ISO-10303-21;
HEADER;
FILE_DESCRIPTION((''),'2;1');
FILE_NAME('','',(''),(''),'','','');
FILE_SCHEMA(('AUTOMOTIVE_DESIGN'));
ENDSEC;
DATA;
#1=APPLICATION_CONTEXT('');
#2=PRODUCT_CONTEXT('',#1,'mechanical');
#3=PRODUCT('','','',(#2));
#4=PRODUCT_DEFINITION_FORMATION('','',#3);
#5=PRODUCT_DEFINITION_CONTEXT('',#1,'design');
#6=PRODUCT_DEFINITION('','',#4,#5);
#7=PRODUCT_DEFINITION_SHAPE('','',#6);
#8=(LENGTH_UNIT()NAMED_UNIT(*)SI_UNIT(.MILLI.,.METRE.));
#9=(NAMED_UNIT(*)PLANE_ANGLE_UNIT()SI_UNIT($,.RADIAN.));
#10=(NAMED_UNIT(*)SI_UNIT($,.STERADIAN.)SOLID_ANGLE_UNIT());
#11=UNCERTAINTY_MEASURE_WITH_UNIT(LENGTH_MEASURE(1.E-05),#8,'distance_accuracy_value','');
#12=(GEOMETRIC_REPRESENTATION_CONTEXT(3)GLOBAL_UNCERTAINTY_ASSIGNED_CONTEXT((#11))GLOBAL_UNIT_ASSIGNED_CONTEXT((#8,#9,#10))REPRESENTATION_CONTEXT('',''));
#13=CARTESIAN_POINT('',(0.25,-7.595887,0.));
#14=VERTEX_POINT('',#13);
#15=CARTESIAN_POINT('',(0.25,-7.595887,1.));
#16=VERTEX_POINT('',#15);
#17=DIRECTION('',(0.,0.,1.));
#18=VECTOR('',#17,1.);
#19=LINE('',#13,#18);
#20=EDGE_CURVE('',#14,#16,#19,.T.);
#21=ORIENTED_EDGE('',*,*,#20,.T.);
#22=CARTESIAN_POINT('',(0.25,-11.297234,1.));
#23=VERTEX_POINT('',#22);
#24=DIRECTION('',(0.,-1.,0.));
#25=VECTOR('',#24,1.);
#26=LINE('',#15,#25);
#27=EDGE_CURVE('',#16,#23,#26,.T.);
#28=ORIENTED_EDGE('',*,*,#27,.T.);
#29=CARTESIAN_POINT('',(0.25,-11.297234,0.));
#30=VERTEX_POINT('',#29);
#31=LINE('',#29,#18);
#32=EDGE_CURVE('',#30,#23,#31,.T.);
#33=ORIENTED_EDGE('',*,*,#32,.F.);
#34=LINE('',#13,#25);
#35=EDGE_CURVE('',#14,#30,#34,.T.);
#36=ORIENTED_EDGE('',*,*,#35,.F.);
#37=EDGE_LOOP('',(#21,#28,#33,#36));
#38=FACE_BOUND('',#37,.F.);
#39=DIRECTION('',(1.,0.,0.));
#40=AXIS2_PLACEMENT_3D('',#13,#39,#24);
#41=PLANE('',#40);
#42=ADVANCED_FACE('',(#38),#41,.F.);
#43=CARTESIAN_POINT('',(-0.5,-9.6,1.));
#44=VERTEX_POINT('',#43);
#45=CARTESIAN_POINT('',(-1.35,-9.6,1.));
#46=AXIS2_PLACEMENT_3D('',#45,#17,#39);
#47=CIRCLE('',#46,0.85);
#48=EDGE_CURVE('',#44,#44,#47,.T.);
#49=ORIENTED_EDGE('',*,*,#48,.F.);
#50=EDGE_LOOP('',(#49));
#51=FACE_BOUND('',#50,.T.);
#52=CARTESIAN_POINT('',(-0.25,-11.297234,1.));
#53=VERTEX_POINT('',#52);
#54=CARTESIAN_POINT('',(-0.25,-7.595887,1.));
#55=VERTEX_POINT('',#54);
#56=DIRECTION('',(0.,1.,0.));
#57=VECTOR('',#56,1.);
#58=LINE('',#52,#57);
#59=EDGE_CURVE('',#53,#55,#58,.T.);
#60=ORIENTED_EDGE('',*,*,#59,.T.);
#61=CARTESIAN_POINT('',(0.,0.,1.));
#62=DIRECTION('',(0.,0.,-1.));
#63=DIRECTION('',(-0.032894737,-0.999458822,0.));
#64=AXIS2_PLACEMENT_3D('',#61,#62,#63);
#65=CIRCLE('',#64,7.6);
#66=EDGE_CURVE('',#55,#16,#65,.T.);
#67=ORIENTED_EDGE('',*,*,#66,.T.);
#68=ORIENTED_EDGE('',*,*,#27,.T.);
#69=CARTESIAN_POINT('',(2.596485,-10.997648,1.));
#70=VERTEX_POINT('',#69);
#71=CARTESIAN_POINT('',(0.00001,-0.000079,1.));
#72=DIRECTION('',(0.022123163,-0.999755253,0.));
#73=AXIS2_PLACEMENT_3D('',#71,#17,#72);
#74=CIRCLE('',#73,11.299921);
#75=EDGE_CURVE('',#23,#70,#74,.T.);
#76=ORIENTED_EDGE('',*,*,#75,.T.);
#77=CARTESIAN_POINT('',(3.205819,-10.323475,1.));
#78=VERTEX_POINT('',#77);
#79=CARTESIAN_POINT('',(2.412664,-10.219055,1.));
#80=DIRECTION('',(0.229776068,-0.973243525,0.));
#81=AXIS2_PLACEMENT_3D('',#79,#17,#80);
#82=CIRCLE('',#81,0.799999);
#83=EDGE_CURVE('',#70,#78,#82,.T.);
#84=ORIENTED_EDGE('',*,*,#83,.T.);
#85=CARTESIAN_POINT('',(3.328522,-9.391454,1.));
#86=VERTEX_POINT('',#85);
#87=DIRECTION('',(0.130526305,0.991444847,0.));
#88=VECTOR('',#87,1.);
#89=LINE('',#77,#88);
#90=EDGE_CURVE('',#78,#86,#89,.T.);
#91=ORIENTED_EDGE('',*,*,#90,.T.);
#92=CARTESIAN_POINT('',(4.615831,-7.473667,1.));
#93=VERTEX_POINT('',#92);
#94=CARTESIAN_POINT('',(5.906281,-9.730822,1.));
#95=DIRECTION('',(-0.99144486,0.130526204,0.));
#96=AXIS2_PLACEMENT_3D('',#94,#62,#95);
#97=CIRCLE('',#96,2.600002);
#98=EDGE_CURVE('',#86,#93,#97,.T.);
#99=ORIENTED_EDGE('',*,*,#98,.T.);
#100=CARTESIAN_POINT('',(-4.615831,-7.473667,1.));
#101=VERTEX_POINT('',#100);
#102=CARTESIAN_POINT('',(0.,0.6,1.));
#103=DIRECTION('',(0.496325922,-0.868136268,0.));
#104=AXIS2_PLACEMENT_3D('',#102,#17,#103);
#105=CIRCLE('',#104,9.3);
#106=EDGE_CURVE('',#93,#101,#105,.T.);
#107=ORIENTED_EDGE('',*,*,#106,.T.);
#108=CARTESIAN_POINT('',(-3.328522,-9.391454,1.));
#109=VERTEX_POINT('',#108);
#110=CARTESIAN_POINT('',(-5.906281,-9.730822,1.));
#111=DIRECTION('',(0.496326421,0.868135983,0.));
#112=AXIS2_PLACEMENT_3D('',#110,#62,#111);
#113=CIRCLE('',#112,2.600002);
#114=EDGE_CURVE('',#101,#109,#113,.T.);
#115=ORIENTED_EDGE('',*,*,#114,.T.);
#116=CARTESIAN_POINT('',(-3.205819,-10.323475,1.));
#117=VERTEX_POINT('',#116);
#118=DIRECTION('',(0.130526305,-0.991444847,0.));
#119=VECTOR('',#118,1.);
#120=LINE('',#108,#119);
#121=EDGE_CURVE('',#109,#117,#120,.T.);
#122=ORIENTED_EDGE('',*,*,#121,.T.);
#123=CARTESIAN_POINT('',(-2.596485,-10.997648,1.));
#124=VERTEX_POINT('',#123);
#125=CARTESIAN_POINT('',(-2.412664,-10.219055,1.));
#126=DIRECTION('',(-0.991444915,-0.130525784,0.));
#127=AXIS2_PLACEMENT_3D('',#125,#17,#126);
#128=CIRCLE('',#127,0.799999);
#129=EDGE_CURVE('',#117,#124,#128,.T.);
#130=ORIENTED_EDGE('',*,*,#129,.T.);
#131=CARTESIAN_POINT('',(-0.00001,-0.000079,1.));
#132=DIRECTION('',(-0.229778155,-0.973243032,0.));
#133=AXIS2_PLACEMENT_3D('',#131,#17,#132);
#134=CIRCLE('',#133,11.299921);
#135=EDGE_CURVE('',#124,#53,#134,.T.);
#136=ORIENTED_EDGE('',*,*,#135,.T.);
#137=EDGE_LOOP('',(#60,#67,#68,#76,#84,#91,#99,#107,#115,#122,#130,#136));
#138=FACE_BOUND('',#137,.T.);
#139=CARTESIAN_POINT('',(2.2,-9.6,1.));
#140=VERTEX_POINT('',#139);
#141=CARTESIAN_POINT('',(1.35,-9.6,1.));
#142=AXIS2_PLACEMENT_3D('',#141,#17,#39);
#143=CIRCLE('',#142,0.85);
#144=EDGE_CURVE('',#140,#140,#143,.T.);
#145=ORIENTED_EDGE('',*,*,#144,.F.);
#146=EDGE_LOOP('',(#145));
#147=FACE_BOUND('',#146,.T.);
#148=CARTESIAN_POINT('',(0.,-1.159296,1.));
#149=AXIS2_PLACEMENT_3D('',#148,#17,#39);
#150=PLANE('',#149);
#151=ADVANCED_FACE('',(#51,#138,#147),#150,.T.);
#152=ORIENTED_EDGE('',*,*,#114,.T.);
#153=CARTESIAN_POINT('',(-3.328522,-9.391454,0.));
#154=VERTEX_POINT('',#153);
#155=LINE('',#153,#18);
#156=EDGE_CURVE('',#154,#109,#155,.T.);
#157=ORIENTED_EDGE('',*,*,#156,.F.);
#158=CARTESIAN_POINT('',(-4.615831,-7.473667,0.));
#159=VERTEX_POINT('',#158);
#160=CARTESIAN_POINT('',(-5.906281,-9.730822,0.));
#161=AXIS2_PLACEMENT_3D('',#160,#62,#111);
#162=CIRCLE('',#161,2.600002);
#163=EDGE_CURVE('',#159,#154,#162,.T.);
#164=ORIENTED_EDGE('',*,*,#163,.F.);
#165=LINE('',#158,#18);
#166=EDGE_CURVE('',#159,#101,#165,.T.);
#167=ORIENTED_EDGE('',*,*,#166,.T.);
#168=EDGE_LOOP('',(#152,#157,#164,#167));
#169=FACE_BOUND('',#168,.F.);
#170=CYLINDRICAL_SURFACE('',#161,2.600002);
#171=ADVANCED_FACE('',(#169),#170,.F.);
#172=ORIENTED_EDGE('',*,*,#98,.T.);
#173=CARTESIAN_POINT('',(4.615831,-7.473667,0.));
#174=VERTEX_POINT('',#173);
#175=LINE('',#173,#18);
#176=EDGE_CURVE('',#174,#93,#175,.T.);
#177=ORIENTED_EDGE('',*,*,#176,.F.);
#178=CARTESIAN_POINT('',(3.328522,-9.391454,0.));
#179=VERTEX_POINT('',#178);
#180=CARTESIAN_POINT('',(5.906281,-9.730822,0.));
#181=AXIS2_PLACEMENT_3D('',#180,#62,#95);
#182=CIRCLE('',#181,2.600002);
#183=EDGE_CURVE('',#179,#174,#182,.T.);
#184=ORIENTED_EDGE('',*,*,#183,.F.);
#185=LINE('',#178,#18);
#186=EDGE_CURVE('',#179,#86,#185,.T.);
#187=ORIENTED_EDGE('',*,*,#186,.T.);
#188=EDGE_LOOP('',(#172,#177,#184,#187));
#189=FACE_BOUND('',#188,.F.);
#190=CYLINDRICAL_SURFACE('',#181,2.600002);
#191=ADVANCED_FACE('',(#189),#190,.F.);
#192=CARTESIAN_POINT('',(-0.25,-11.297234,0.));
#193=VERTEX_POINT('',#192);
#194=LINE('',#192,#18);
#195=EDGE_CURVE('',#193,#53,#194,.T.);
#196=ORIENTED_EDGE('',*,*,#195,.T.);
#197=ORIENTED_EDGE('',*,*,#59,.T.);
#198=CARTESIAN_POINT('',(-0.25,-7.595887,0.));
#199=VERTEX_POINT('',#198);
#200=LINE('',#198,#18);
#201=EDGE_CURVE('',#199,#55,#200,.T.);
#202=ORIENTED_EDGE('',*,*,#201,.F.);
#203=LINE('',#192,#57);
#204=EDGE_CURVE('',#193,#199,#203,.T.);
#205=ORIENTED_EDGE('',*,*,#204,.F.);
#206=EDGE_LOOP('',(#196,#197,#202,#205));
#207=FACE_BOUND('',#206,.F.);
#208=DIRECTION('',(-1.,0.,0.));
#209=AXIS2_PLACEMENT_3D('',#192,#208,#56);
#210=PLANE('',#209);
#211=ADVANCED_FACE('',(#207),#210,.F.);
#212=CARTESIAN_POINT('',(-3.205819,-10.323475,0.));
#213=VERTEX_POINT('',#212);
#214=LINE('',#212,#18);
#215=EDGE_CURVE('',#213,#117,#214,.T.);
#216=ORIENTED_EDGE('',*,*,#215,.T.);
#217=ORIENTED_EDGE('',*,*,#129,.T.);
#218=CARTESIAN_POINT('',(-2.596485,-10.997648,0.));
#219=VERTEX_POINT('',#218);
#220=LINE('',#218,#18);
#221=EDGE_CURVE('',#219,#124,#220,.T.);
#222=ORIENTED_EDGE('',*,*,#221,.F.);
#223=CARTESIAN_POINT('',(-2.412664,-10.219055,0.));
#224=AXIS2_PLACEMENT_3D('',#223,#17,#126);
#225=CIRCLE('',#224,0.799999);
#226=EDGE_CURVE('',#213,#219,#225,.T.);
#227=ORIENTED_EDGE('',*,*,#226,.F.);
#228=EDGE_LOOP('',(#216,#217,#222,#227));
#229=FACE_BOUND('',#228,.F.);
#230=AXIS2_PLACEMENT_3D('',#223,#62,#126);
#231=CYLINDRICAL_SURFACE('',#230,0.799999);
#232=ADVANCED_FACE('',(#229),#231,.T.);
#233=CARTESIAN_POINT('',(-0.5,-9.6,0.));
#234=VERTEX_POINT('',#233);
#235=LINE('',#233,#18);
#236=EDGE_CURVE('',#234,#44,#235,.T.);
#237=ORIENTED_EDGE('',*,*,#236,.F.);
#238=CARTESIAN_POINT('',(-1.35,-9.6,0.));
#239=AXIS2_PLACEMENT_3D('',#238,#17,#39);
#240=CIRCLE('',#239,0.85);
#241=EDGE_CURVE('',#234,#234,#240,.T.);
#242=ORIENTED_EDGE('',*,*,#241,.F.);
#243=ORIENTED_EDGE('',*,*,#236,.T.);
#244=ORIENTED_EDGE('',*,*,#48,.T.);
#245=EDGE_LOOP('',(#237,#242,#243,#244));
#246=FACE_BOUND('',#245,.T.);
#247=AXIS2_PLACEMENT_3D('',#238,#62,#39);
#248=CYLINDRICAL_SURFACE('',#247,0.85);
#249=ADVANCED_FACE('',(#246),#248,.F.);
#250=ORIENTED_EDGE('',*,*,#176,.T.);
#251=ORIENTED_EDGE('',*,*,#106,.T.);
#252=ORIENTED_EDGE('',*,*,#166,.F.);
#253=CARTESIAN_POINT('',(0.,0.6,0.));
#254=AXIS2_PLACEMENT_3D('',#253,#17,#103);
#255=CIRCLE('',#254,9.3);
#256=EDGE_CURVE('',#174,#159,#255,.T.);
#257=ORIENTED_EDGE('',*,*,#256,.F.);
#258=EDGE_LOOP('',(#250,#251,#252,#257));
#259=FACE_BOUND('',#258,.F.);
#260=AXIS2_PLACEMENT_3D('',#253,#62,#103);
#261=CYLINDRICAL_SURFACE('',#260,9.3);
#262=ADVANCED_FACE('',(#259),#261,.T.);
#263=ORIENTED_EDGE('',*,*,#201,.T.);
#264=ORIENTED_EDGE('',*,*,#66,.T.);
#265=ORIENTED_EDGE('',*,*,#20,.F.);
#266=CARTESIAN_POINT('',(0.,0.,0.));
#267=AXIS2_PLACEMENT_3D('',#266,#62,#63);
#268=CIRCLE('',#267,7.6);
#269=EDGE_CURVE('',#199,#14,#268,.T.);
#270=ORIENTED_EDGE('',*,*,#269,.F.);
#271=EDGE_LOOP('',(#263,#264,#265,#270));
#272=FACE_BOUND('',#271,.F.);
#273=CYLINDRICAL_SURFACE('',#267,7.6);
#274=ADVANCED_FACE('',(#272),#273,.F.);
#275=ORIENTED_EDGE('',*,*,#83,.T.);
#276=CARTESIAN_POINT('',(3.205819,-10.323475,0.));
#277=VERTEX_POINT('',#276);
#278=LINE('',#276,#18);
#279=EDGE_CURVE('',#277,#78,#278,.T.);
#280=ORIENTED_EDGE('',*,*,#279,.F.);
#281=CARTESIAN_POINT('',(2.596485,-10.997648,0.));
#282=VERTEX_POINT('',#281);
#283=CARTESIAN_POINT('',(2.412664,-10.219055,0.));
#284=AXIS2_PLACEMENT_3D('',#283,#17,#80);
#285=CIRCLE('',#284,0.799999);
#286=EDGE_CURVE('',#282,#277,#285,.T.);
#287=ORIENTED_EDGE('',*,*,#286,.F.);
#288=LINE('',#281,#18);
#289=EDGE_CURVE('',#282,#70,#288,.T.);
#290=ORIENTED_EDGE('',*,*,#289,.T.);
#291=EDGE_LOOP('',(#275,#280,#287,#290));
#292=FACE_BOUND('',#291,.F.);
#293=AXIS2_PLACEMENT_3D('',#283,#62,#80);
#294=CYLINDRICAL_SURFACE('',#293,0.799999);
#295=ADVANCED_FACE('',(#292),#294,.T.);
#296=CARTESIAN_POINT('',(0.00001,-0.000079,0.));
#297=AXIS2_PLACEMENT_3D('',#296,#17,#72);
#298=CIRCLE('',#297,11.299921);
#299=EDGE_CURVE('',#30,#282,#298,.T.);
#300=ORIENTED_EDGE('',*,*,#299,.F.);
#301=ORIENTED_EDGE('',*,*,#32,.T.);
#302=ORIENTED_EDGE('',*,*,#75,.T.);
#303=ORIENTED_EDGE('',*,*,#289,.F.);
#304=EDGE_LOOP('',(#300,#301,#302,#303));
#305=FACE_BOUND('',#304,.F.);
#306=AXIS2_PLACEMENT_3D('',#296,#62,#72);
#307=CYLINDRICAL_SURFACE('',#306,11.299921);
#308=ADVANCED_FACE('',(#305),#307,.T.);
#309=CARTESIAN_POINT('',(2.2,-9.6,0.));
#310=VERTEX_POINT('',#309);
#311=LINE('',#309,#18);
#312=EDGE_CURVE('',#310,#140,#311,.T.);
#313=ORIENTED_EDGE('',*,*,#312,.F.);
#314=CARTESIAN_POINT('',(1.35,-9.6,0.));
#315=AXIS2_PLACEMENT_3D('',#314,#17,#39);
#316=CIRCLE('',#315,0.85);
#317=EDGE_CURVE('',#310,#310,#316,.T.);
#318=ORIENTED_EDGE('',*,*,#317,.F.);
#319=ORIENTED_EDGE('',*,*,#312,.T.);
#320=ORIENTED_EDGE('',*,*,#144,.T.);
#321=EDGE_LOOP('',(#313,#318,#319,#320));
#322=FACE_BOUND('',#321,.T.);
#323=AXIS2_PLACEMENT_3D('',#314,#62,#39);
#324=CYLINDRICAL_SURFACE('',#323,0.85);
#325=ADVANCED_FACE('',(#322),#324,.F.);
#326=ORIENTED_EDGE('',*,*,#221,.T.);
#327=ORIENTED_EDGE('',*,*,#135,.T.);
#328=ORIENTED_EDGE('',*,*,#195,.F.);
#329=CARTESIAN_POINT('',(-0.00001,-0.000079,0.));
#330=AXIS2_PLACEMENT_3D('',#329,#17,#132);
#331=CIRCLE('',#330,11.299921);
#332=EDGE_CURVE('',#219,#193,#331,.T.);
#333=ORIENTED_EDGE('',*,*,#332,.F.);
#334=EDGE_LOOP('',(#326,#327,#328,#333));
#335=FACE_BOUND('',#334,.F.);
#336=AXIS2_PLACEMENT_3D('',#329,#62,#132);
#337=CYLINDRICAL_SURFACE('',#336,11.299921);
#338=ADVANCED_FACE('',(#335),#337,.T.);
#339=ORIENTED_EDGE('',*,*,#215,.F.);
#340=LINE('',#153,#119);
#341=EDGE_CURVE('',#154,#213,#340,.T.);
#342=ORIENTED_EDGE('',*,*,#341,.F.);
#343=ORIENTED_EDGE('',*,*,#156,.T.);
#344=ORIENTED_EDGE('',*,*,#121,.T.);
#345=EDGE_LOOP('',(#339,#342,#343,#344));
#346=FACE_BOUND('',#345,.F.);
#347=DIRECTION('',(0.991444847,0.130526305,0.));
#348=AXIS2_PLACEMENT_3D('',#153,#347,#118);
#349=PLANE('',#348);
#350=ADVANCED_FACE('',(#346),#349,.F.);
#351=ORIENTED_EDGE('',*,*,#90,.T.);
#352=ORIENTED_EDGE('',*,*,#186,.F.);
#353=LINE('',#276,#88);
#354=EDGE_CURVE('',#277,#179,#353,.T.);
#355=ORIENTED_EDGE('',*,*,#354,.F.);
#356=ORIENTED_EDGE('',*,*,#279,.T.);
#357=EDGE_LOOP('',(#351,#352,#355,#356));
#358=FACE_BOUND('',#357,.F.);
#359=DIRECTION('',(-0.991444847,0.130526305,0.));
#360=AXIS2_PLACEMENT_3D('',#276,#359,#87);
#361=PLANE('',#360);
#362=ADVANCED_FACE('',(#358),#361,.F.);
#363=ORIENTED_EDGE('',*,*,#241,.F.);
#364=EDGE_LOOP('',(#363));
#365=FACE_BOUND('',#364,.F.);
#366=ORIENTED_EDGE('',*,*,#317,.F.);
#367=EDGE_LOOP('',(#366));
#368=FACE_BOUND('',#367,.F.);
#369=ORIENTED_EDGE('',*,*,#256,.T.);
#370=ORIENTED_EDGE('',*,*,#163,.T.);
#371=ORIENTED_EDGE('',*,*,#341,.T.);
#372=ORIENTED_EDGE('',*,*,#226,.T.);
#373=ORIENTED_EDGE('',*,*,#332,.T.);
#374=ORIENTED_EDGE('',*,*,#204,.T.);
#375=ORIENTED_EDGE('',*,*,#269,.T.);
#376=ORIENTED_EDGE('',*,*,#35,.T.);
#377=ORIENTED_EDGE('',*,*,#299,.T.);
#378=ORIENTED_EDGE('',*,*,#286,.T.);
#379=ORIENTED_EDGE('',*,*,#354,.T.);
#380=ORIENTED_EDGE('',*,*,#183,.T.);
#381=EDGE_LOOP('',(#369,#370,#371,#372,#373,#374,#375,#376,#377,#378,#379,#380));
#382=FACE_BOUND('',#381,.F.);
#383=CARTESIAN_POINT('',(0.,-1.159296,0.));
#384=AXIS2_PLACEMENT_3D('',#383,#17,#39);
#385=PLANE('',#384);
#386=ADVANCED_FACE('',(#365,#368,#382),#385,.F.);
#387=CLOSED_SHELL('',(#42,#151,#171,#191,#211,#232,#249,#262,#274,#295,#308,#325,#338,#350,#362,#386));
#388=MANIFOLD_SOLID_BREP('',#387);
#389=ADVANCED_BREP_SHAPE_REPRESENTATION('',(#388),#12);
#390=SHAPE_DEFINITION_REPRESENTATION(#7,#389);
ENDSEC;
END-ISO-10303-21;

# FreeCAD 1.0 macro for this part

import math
import FreeCAD as App
import Part
import Sketcher
from FreeCAD import Vector
Q = App.Units.Quantity

doc = App.newDocument("Part")
body = doc.addObject("PartDesign::Body", "Body")

# Sketch on XY plane
sketch1 = body.newObject("Sketcher::SketchObject", "Sketch")
sketch1.AttachmentSupport = (doc.getObject("XY_Plane"), [""])
sketch1.MapMode = "FlatFace"
sketch1.addGeometry(Part.ArcOfCircle(Part.Circle(Vector(0, 0, 0), Vector(0, 0, 1), 7.6), math.radians(-88), math.radians(268)), False)
sketch1.addGeometry(Part.LineSegment(Vector(0.2, -7.6, 0), Vector(0.2, -11.3, 0)), False)
sketch1.addGeometry(Part.ArcOfCircle(Part.Circle(Vector(0, 0, 0), Vector(0, 0, 1), 11.3), math.radians(-88.73), math.radians(-76.72)), False)
sketch1.addGeometry(Part.ArcOfCircle(Part.Circle(Vector(2.4, -10.2, 0), Vector(0, 0, 1), 0.8), math.radians(-77), math.radians(-7)), False)
sketch1.addGeometry(Part.LineSegment(Vector(3.2, -10.3, 0), Vector(3.3, -9.4, 0)), False)
sketch1.addGeometry(Part.ArcOfCircle(Part.Circle(Vector(5.9, -9.7, 0), Vector(0, 0, 1), 2.6), math.radians(120), math.radians(172)), False)
sketch1.addGeometry(Part.ArcOfCircle(Part.Circle(Vector(0, 0.6, 0), Vector(0, 0, 1), 9.3), math.radians(-60), math.radians(240)), False)
sketch1.addGeometry(Part.ArcOfCircle(Part.Circle(Vector(-5.9, -9.7, 0), Vector(0, 0, 1), 2.6), math.radians(8), math.radians(60)), False)
sketch1.addGeometry(Part.LineSegment(Vector(-3.3, -9.4, 0), Vector(-3.2, -10.3, 0)), False)
sketch1.addGeometry(Part.ArcOfCircle(Part.Circle(Vector(-2.4, -10.2, 0), Vector(0, 0, 1), 0.8), math.radians(-173), math.radians(-103)), False)
sketch1.addGeometry(Part.ArcOfCircle(Part.Circle(Vector(0, 0, 0), Vector(0, 0, 1), 11.3), math.radians(-103.28), math.radians(-91.27)), False)
sketch1.addGeometry(Part.LineSegment(Vector(-0.2, -11.3, 0), Vector(-0.2, -7.6, 0)), False)
sketch1.addGeometry(Part.Circle(Vector(-1.4, -9.6, 0), Vector(0, 0, 1), 0.8), False)
sketch1.addGeometry(Part.Circle(Vector(1.4, -9.6, 0), Vector(0, 0, 1), 0.8), False)
sketch1.addConstraint(Sketcher.Constraint("Coincident", 0, 1, 1, 1))
sketch1.addConstraint(Sketcher.Constraint("Coincident", 1, 2, 2, 1))
sketch1.addConstraint(Sketcher.Constraint("Coincident", 2, 2, 3, 1))
sketch1.addConstraint(Sketcher.Constraint("Tangent", 3, 2, 4, 1))
sketch1.addConstraint(Sketcher.Constraint("Tangent", 4, 2, 5, 2))
sketch1.addConstraint(Sketcher.Constraint("Tangent", 5, 1, 6, 1))
sketch1.addConstraint(Sketcher.Constraint("Tangent", 6, 2, 7, 2))
sketch1.addConstraint(Sketcher.Constraint("Tangent", 7, 1, 8, 1))
sketch1.addConstraint(Sketcher.Constraint("Tangent", 8, 2, 9, 1))
sketch1.addConstraint(Sketcher.Constraint("Coincident", 9, 2, 10, 1))
sketch1.addConstraint(Sketcher.Constraint("Coincident", 10, 2, 11, 1))
sketch1.addConstraint(Sketcher.Constraint("Coincident", 11, 2, 0, 2))
sketch1.addConstraint(Sketcher.Constraint("Vertical", 1))
sketch1.addConstraint(Sketcher.Constraint("Vertical", 11))
sketch1.addConstraint(Sketcher.Constraint("Coincident", 0, 3, -1, 1))
sketch1.addConstraint(Sketcher.Constraint("Equal", 5, 7))
sketch1.addConstraint(Sketcher.Constraint("Equal", 3, 9))
sketch1.addConstraint(Sketcher.Constraint("Equal", 2, 10))
sketch1.addConstraint(Sketcher.Constraint("Equal", 12, 13))
sketch1.addConstraint(Sketcher.Constraint("Symmetric", 5, 3, 7, 3, -2))
sketch1.addConstraint(Sketcher.Constraint("Symmetric", 3, 3, 9, 3, -2))
sketch1.addConstraint(Sketcher.Constraint("Symmetric", 12, 3, 13, 3, -2))
sketch1.addConstraint(Sketcher.Constraint("Symmetric", 1, 2, 10, 2, -2))
sketch1.addConstraint(Sketcher.Constraint("Horizontal", 2, 2, 9, 2))
sketch1.addConstraint(Sketcher.Constraint("Diameter", 12, 1.7))
sketch1.addConstraint(Sketcher.Constraint("Radius", 0, 7.6))
sketch1.addConstraint(Sketcher.Constraint("Radius", 3, 0.799999))
sketch1.addConstraint(Sketcher.Constraint("Radius", 6, 9.3))
sketch1.addConstraint(Sketcher.Constraint("Angle", 4, Q("82.499994 deg")))
sketch1.addConstraint(Sketcher.Constraint("DistanceY", -1, 1, 6, 3, 0.6))
sketch1.addConstraint(Sketcher.Constraint("DistanceY", 12, 3, -1, 1, 9.6))
sketch1.addConstraint(Sketcher.Constraint("DistanceX", 12, 3, 13, 3, 2.7))
sketch1.addConstraint(Sketcher.Constraint("DistanceX", 0, 1, 13, 3, 1.1))
sketch1.addConstraint(Sketcher.Constraint("Radius", 2, 11.299921))
sketch1.addConstraint(Sketcher.Constraint("Radius", 5, 2.600002))
sketch1.addConstraint(Sketcher.Constraint("DistanceY", 3, 3, 4, 2, 0.827601))
sketch1.addConstraint(Sketcher.Constraint("DistanceY", 1, 2, 1, 1, 3.701347))
sketch1.addConstraint(Sketcher.Constraint("DistanceX", -1, 1, 5, 3, 5.906281))
sketch1.addConstraint(Sketcher.Constraint("DistanceX", 3, 3, 2, 2, 0.183821))
pad1 = body.newObject("PartDesign::Pad", "Pad")
pad1.Profile = sketch1
pad1.Length = 1

doc.recompute()
